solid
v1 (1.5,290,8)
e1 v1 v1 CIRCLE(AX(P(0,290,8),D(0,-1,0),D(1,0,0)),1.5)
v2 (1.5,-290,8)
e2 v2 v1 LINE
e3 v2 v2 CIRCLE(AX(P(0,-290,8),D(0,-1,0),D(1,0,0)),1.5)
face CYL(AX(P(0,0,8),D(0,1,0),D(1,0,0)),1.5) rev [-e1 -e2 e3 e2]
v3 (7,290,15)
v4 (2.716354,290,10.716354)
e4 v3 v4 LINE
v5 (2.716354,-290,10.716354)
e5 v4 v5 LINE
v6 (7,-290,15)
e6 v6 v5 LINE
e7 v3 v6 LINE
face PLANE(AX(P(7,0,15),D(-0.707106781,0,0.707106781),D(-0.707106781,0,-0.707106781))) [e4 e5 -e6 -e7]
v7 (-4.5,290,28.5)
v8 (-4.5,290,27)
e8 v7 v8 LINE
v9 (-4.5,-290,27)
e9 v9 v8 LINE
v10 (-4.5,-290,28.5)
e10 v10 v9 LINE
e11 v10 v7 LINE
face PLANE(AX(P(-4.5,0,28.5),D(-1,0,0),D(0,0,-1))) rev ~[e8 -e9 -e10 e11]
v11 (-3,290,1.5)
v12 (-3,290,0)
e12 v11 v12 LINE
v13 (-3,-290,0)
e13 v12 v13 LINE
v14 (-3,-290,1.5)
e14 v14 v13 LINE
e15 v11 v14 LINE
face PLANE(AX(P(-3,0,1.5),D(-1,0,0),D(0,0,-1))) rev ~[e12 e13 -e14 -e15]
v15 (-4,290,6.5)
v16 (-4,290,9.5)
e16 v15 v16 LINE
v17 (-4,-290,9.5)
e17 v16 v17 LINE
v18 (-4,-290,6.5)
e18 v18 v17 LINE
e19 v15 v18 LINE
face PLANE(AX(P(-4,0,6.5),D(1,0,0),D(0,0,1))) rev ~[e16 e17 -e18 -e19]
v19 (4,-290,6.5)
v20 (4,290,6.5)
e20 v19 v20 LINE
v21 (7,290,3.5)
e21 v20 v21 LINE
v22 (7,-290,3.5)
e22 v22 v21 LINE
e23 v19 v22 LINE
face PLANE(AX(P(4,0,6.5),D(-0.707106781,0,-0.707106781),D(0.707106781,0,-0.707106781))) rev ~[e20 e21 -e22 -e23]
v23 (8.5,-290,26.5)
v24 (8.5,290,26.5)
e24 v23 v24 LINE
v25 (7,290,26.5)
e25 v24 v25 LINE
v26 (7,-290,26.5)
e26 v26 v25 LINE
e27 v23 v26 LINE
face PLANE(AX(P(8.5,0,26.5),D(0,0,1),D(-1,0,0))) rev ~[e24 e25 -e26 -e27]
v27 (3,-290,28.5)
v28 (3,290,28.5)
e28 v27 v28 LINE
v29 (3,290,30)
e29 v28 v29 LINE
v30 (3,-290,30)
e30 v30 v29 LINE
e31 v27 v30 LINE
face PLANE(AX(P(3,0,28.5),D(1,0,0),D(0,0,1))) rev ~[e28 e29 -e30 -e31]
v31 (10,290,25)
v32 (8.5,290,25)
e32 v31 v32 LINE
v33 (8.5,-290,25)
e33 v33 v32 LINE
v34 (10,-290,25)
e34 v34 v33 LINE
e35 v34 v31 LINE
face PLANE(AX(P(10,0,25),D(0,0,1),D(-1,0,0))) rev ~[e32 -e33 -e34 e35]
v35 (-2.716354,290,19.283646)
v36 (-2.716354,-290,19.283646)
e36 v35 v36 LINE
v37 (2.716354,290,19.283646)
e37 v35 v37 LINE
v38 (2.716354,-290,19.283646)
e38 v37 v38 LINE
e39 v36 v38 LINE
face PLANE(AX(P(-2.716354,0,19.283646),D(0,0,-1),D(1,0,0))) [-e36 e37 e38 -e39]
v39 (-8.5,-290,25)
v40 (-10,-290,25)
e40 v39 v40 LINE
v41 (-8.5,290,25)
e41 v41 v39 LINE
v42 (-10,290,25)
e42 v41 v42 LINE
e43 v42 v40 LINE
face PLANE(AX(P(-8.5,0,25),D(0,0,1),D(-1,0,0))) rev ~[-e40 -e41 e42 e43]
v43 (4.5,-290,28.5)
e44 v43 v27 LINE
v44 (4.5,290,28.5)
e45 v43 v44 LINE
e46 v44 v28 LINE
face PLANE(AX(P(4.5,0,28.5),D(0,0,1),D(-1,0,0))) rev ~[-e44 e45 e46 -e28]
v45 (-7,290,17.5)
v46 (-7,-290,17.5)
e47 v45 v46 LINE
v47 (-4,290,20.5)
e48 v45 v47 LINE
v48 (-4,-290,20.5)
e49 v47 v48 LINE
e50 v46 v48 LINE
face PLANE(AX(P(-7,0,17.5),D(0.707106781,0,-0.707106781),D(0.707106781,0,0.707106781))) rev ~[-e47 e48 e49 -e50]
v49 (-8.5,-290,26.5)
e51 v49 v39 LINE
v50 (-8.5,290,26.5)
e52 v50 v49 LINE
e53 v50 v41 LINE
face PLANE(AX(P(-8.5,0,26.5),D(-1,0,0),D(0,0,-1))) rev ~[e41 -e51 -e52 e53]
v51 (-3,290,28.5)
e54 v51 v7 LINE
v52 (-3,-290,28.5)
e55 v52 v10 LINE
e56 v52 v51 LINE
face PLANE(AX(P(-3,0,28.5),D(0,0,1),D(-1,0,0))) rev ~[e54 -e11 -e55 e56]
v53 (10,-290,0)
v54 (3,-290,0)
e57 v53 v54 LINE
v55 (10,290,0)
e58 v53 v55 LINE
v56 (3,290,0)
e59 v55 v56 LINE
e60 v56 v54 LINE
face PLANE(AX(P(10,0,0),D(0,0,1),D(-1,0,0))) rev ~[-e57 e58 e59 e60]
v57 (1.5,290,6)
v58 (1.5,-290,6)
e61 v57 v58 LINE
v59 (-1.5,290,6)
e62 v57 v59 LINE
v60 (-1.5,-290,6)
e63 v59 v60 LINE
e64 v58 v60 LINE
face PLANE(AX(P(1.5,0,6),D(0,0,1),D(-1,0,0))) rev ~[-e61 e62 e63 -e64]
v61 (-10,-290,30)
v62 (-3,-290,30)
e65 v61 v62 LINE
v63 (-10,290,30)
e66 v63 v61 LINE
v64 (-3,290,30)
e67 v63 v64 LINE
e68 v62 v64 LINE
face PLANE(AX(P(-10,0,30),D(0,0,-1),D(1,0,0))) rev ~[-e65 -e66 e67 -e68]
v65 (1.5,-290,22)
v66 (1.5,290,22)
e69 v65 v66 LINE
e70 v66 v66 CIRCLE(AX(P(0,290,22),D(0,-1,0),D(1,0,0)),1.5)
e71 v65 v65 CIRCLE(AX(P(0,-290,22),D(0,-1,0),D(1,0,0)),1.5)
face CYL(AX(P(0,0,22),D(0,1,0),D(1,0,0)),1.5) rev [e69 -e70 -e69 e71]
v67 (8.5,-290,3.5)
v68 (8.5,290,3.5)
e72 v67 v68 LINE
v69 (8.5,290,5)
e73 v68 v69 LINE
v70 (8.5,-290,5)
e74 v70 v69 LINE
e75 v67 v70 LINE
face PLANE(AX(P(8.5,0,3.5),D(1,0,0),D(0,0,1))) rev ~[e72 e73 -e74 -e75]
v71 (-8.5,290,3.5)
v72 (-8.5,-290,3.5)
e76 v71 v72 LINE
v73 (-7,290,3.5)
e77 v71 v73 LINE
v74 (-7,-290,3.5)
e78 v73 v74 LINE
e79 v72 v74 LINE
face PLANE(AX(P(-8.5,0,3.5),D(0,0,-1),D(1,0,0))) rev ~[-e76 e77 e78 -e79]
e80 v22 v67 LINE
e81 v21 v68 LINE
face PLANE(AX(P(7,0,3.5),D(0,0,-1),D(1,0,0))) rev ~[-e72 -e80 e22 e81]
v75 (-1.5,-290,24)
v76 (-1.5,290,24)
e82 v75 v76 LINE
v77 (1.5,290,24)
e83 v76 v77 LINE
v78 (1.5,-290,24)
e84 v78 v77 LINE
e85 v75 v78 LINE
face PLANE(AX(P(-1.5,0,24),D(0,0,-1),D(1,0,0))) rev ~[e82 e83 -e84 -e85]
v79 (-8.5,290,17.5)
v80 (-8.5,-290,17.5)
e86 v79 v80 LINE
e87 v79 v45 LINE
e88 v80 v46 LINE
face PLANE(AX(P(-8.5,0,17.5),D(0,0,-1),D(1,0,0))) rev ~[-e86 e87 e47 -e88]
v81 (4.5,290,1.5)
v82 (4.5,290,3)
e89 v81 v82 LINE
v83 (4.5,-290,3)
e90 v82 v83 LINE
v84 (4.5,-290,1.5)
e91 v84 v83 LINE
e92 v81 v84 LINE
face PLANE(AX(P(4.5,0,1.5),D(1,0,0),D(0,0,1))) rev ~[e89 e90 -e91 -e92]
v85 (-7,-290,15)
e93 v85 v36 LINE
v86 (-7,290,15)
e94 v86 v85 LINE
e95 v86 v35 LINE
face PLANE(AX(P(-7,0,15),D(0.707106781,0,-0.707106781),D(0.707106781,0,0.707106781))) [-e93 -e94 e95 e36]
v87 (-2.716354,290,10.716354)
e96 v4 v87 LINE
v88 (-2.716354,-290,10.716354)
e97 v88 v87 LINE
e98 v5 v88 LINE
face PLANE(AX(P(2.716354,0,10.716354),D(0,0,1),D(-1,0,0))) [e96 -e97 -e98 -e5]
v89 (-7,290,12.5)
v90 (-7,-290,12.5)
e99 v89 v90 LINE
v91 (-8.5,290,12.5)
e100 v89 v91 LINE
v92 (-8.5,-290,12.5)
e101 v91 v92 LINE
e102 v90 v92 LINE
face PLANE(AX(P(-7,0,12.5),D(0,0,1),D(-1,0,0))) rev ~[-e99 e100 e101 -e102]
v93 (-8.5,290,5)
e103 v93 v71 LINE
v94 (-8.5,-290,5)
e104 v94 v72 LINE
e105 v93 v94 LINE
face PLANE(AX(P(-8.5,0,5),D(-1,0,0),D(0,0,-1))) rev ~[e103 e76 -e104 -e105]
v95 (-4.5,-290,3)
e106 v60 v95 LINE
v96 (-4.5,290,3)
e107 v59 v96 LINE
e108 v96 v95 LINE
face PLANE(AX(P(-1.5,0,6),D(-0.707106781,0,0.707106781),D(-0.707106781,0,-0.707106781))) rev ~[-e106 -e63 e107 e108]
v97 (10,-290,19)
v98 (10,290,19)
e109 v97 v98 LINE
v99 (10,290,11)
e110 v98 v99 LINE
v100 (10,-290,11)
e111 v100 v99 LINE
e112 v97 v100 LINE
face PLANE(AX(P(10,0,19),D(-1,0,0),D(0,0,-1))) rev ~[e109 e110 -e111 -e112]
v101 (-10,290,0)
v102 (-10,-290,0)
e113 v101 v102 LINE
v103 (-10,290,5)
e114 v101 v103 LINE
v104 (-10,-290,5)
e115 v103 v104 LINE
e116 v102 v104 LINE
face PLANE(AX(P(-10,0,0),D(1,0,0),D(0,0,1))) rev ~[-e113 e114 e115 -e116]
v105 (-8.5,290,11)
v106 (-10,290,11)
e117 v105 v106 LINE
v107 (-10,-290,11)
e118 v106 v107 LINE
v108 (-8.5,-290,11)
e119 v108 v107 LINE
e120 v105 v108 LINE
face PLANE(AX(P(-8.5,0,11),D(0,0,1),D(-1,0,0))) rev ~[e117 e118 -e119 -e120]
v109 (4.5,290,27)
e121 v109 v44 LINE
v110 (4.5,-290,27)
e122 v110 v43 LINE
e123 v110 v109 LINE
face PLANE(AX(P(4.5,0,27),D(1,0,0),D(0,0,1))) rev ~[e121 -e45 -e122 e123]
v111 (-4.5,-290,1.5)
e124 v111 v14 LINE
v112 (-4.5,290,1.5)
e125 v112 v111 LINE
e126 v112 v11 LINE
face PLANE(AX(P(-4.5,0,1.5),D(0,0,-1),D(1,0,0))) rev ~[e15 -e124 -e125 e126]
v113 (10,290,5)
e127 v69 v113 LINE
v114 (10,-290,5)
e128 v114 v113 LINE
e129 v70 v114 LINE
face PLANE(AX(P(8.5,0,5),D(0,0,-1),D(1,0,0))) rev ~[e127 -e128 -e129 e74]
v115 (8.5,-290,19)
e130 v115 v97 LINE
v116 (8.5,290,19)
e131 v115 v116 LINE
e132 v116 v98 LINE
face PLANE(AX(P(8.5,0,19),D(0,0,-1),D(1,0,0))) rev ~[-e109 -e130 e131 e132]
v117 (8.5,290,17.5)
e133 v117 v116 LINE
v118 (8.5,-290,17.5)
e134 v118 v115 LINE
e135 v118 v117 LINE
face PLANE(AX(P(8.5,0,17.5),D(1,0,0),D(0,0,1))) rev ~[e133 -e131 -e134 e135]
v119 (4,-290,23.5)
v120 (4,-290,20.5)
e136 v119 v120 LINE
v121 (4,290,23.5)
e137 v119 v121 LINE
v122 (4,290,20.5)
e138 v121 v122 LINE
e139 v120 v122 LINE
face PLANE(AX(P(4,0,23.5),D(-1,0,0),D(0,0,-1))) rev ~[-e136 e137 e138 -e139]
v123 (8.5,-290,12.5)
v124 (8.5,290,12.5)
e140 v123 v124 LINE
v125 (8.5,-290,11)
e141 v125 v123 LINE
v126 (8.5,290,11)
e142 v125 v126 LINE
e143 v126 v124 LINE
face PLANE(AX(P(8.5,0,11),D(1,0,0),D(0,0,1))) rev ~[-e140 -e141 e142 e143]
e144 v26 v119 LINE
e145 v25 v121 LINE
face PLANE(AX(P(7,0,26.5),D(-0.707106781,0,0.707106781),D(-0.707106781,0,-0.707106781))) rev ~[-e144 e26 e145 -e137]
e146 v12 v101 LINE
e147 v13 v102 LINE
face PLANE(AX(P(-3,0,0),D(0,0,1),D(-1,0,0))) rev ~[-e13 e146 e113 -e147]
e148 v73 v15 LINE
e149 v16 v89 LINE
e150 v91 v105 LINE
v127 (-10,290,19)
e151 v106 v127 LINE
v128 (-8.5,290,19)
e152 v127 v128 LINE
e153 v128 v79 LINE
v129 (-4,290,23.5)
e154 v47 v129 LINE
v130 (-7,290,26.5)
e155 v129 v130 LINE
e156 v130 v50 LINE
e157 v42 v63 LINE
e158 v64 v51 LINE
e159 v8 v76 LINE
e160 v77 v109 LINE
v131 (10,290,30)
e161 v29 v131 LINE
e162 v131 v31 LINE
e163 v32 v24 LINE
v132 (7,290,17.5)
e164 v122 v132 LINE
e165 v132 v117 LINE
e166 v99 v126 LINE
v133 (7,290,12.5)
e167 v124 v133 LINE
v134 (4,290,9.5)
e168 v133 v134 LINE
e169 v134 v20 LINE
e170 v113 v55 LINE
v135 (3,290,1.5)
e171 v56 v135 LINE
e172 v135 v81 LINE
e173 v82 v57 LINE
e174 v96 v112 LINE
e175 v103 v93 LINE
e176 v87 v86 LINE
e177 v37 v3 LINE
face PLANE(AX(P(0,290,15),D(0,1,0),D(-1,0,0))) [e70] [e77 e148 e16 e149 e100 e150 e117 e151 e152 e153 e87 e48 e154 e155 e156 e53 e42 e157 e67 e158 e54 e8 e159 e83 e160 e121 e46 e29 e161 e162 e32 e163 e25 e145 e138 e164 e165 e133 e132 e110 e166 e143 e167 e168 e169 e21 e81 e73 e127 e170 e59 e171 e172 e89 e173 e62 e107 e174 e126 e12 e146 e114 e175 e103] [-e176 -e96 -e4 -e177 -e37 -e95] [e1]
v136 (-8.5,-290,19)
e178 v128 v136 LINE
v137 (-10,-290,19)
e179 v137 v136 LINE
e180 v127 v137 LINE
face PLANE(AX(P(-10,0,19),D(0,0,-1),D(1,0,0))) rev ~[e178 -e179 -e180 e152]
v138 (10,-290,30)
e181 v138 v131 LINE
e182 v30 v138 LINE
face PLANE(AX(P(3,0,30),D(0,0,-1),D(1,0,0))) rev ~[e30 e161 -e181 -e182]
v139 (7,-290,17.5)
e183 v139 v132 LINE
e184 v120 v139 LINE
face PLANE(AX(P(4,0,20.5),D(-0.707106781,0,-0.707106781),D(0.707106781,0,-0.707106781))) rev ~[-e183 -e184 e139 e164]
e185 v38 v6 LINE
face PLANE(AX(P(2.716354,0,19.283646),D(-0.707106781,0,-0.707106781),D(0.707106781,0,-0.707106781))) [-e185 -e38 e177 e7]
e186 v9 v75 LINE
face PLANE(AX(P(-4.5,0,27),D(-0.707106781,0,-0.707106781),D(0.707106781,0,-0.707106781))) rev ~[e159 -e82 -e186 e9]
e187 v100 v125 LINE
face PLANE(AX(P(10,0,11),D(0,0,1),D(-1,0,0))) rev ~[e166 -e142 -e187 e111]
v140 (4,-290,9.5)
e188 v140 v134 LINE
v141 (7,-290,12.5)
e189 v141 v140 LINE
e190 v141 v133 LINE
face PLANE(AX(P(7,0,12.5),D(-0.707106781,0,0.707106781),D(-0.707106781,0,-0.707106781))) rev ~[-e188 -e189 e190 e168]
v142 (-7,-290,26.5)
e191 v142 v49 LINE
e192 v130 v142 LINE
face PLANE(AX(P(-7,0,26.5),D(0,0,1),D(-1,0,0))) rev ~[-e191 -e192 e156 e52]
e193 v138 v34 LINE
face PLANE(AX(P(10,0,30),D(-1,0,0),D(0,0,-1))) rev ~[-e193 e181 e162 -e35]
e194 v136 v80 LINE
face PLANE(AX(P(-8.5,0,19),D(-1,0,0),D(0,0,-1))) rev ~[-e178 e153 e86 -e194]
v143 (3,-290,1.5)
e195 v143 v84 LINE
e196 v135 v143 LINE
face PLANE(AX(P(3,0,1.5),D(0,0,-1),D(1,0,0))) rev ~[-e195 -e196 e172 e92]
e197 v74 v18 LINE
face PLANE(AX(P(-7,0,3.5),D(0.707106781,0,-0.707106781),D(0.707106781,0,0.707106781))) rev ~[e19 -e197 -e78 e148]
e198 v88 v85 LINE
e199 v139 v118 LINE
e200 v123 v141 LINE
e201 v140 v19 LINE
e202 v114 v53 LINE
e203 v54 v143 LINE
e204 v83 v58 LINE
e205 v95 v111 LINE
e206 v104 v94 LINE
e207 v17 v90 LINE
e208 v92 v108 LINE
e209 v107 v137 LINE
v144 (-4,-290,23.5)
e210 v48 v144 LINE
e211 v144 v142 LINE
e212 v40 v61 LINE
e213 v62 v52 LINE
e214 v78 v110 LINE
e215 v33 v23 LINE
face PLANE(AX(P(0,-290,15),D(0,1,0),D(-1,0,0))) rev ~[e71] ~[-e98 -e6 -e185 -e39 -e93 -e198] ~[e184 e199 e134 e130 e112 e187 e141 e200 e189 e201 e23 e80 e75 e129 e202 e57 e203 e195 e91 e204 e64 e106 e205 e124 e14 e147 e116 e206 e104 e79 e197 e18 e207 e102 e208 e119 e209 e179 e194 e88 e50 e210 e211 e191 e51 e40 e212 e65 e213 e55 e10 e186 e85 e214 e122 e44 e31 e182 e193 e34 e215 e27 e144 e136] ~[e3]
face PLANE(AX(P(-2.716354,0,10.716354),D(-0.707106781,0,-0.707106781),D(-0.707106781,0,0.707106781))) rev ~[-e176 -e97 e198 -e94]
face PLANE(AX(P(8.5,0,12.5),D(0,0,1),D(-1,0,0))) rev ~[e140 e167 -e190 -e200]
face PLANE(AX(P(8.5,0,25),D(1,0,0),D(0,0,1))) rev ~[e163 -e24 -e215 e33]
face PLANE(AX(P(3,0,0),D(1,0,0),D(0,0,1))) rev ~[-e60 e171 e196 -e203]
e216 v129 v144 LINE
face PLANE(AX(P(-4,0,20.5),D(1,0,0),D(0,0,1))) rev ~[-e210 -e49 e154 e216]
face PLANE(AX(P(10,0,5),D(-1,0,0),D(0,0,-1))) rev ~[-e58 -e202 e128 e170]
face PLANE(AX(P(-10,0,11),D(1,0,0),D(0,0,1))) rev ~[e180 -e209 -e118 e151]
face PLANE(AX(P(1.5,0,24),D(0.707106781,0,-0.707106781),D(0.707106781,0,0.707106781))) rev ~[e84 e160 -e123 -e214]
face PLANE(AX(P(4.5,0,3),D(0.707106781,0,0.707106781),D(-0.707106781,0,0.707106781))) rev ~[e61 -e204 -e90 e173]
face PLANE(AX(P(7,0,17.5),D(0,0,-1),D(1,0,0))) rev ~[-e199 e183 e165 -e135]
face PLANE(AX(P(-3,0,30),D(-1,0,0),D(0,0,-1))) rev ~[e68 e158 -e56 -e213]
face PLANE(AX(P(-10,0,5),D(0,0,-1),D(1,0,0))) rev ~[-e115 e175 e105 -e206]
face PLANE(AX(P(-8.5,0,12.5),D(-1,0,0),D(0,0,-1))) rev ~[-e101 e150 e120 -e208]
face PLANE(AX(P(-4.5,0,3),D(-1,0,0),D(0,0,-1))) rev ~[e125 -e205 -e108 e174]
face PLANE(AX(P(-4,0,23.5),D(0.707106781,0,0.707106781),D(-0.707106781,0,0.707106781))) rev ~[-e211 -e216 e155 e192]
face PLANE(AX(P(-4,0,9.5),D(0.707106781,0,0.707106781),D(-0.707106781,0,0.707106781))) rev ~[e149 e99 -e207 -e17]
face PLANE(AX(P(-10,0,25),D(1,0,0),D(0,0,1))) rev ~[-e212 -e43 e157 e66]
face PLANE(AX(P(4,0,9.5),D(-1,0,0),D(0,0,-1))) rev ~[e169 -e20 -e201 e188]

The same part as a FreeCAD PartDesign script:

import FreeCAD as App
import Part
import Sketcher
from FreeCAD import Vector


def add_polygon(sketch, points):
    """Adds a closed chain of lines whose ends are joined by coincident constraints."""
    first, n = sketch.GeometryCount, len(points)
    for a, b in zip(points, points[1:] + points[:1]):
        sketch.addGeometry(Part.LineSegment(App.Vector(*a, 0), App.Vector(*b, 0)), False)
    for i in range(n):
        sketch.addConstraint(Sketcher.Constraint("Coincident", first + i, 2, first + (i + 1) % n, 1))

doc = App.newDocument("Part")
body = doc.addObject("PartDesign::Body", "Body")

sketch1 = body.newObject("Sketcher::SketchObject", "Sketch")
sketch1.AttachmentSupport = (doc.getObject("XZ_Plane"), [""])
sketch1.MapMode = "FlatFace"
add_polygon(sketch1, [(-3, 30), (-10, 30), (-10, 25), (-8.5, 25), (-8.5, 26.5), (-7, 26.5), (-4, 23.5), (-4, 20.5), (-7, 17.5), (-8.5, 17.5), (-8.5, 19), (-10, 19), (-10, 11), (-8.5, 11), (-8.5, 12.5), (-7, 12.5), (-4, 9.5), (-4, 6.5), (-7, 3.5), (-8.5, 3.5), (-8.5, 5), (-10, 5), (-10, 0), (-3, 0), (-3, 1.5), (-4.5, 1.5), (-4.5, 3), (-1.5, 6), (1.5, 6), (4.5, 3), (4.5, 1.5), (3, 1.5), (3, 0), (10, 0), (10, 5), (8.5, 5), (8.5, 3.5), (7, 3.5), (4, 6.5), (4, 9.5), (7, 12.5), (8.5, 12.5), (8.5, 11), (10, 11), (10, 19), (8.5, 19), (8.5, 17.5), (7, 17.5), (4, 20.5), (4, 23.5), (7, 26.5), (8.5, 26.5), (8.5, 25), (10, 25), (10, 30), (3, 30), (3, 28.5), (4.5, 28.5), (4.5, 27), (1.5, 24), (-1.5, 24), (-4.5, 27), (-4.5, 28.5), (-3, 28.5)])
sketch1.addGeometry(Part.Circle(Vector(0, 8, 0), Vector(0, 0, 1), 1.5), False)
add_polygon(sketch1, [(-7, 15), (-2.7, 19.3), (2.7, 19.3), (7, 15), (2.7, 10.7), (-2.7, 10.7)])
sketch1.addGeometry(Part.Circle(Vector(0, 22, 0), Vector(0, 0, 1), 1.5), False)
sketch1.addConstraint([
    Sketcher.Constraint("Horizontal", 0),
    Sketcher.Constraint("Vertical", 1),
    Sketcher.Constraint("Horizontal", 2),
    Sketcher.Constraint("Vertical", 3),
    Sketcher.Constraint("Horizontal", 4),
    Sketcher.Constraint("Vertical", 6),
    Sketcher.Constraint("Horizontal", 8),
    Sketcher.Constraint("Vertical", 9),
    Sketcher.Constraint("Horizontal", 10),
    Sketcher.Constraint("Vertical", 11),
    Sketcher.Constraint("Horizontal", 12),
    Sketcher.Constraint("Vertical", 13),
    Sketcher.Constraint("Horizontal", 14),
    Sketcher.Constraint("Vertical", 16),
    Sketcher.Constraint("Horizontal", 18),
    Sketcher.Constraint("Vertical", 19),
    Sketcher.Constraint("Horizontal", 20),
    Sketcher.Constraint("Vertical", 21),
    Sketcher.Constraint("Horizontal", 22),
    Sketcher.Constraint("Vertical", 23),
    Sketcher.Constraint("Horizontal", 24),
    Sketcher.Constraint("Vertical", 25),
    Sketcher.Constraint("Horizontal", 27),
    Sketcher.Constraint("Vertical", 29),
    Sketcher.Constraint("Horizontal", 30),
    Sketcher.Constraint("Vertical", 31),
    Sketcher.Constraint("Horizontal", 32),
    Sketcher.Constraint("Vertical", 33),
    Sketcher.Constraint("Horizontal", 34),
    Sketcher.Constraint("Vertical", 35),
    Sketcher.Constraint("Horizontal", 36),
    Sketcher.Constraint("Vertical", 38),
    Sketcher.Constraint("Horizontal", 40),
    Sketcher.Constraint("Vertical", 41),
    Sketcher.Constraint("Horizontal", 42),
    Sketcher.Constraint("Vertical", 43),
    Sketcher.Constraint("Horizontal", 44),
    Sketcher.Constraint("Vertical", 45),
    Sketcher.Constraint("Horizontal", 46),
    Sketcher.Constraint("Vertical", 48),
    Sketcher.Constraint("Horizontal", 50),
    Sketcher.Constraint("Vertical", 51),
    Sketcher.Constraint("Horizontal", 52),
    Sketcher.Constraint("Vertical", 53),
    Sketcher.Constraint("Horizontal", 54),
    Sketcher.Constraint("Vertical", 55),
    Sketcher.Constraint("Horizontal", 56),
    Sketcher.Constraint("Vertical", 57),
    Sketcher.Constraint("Horizontal", 59),
    Sketcher.Constraint("Vertical", 61),
    Sketcher.Constraint("Horizontal", 62),
    Sketcher.Constraint("Vertical", 63),
    Sketcher.Constraint("Horizontal", 66),
    Sketcher.Constraint("Horizontal", 69),
    Sketcher.Constraint("Equal", 64, 71),
    Sketcher.Constraint("Symmetric", 22, 2, 31, 2, -1, 1),
    Sketcher.Constraint("Symmetric", 25, 2, 28, 2, -2),
    Sketcher.Constraint("Symmetric", 21, 2, 32, 2, -2),
    Sketcher.Constraint("Symmetric", 19, 2, 34, 2, -2),
    Sketcher.Constraint("Symmetric", 17, 2, 36, 2, -2),
    Sketcher.Constraint("Symmetric", 16, 2, 37, 2, -2),
    Sketcher.Constraint("Symmetric", 14, 2, 39, 2, -2),
    Sketcher.Constraint("Symmetric", 12, 2, 41, 2, -2),
    Sketcher.Constraint("Symmetric", 10, 2, 43, 2, -2),
    Sketcher.Constraint("Symmetric", 8, 2, 45, 2, -2),
    Sketcher.Constraint("Symmetric", 6, 2, 47, 2, -2),
    Sketcher.Constraint("Symmetric", 4, 2, 49, 2, -2),
    Sketcher.Constraint("Symmetric", 2, 2, 51, 2, -2),
    Sketcher.Constraint("Symmetric", 0, 2, 53, 2, -2),
    Sketcher.Constraint("Symmetric", 57, 2, 60, 2, -2),
    Sketcher.Constraint("Symmetric", 55, 2, 62, 2, -2),
    Sketcher.Constraint("Symmetric", 67, 2, 70, 2, -2),
    Sketcher.Constraint("PointOnObject", 64, 3, -2),
    Sketcher.Constraint("PointOnObject", 71, 3, -2),
    Sketcher.Constraint("Perpendicular", 5, 7),
    Sketcher.Constraint("Perpendicular", 7, 15),
    Sketcher.Constraint("Perpendicular", 15, 17),
    Sketcher.Constraint("Parallel", 17, 26),
    Sketcher.Constraint("Perpendicular", 26, 28),
    Sketcher.Constraint("Parallel", 28, 37),
    Sketcher.Constraint("Perpendicular", 37, 39),
    Sketcher.Constraint("Perpendicular", 39, 47),
    Sketcher.Constraint("Perpendicular", 47, 49),
    Sketcher.Constraint("Parallel", 49, 58),
    Sketcher.Constraint("Perpendicular", 58, 60),
    Sketcher.Constraint("Perpendicular", 60, 65),
    Sketcher.Constraint("Perpendicular", 65, 67),
    Sketcher.Constraint("Perpendicular", 67, 68),
    Sketcher.Constraint("Perpendicular", 68, 70),
    Sketcher.Constraint("Horizontal", 24, 2, 29, 2),
    Sketcher.Constraint("Vertical", 4, 2, 7, 2),
    Sketcher.Constraint("Vertical", 3, 2, 8, 2),
    Sketcher.Constraint("Vertical", 1, 2, 10, 2),
    Sketcher.Constraint("Vertical", 9, 2, 12, 2),
    Sketcher.Constraint("Vertical", 7, 2, 14, 2),
    Sketcher.Constraint("Vertical", 6, 2, 15, 2),
    Sketcher.Constraint("Vertical", 14, 2, 17, 2),
    Sketcher.Constraint("Vertical", 13, 2, 18, 2),
    Sketcher.Constraint("Vertical", 11, 2, 20, 2),
    Sketcher.Constraint("Vertical", 31, 2, 54, 2),
    Sketcher.Constraint("Vertical", 29, 2, 56, 2),
    Sketcher.Constraint("Vertical", 27, 2, 58, 2),
    Sketcher.Constraint("Vertical", 49, 2, 67, 2),
    Sketcher.Constraint("Vertical", 66, 2, 68, 2),
    Sketcher.Constraint("Equal", 2, 4),
    Sketcher.Constraint("Equal", 20, 24),
    Sketcher.Constraint("Equal", 62, 3),
    Sketcher.Constraint("Equal", 59, 6),
    Sketcher.Constraint("Equal", 3, 9),
    Sketcher.Constraint("Equal", 9, 13),
    Sketcher.Constraint("Equal", 6, 16),
    Sketcher.Constraint("Equal", 13, 19),
    Sketcher.Constraint("Equal", 1, 21),
    Sketcher.Constraint("Equal", 19, 23),
    Sketcher.Constraint("Equal", 23, 25),
    Sketcher.Constraint("Equal", 51, 55),
    Sketcher.Constraint("Equal", 55, 57),
    Sketcher.Constraint("Equal", 17, 26),
    Sketcher.Constraint("Diameter", 64, 3.0),
    Sketcher.Constraint("DistanceX", 0, 2, 0, 1, 7.0),
    Sketcher.Constraint("DistanceX", 27, 1, 27, 2, 3.0),
    Sketcher.Constraint("DistanceY", 1, 2, 1, 1, 5.0),
    Sketcher.Constraint("DistanceY", 11, 2, 11, 1, 8.0),
    Sketcher.Constraint("DistanceX", 2, 1, 2, 2, 1.5),
    Sketcher.Constraint("DistanceY", -1, 1, 64, 3, 8.0),
    Sketcher.Constraint("DistanceY", -1, 1, 71, 3, 22.0),
    Sketcher.Constraint("DistanceX", 0, 2, -1, 1, 10.0),
    Sketcher.Constraint("DistanceY", -1, 1, 67, 2, 15.0),
    Sketcher.Constraint("Distance", 65, 6.05799),
])
pad1 = body.newObject("PartDesign::Pad", "Pad")
pad1.Profile = sketch1
pad1.Length = 580
pad1.Midplane = True

doc.recompute()
